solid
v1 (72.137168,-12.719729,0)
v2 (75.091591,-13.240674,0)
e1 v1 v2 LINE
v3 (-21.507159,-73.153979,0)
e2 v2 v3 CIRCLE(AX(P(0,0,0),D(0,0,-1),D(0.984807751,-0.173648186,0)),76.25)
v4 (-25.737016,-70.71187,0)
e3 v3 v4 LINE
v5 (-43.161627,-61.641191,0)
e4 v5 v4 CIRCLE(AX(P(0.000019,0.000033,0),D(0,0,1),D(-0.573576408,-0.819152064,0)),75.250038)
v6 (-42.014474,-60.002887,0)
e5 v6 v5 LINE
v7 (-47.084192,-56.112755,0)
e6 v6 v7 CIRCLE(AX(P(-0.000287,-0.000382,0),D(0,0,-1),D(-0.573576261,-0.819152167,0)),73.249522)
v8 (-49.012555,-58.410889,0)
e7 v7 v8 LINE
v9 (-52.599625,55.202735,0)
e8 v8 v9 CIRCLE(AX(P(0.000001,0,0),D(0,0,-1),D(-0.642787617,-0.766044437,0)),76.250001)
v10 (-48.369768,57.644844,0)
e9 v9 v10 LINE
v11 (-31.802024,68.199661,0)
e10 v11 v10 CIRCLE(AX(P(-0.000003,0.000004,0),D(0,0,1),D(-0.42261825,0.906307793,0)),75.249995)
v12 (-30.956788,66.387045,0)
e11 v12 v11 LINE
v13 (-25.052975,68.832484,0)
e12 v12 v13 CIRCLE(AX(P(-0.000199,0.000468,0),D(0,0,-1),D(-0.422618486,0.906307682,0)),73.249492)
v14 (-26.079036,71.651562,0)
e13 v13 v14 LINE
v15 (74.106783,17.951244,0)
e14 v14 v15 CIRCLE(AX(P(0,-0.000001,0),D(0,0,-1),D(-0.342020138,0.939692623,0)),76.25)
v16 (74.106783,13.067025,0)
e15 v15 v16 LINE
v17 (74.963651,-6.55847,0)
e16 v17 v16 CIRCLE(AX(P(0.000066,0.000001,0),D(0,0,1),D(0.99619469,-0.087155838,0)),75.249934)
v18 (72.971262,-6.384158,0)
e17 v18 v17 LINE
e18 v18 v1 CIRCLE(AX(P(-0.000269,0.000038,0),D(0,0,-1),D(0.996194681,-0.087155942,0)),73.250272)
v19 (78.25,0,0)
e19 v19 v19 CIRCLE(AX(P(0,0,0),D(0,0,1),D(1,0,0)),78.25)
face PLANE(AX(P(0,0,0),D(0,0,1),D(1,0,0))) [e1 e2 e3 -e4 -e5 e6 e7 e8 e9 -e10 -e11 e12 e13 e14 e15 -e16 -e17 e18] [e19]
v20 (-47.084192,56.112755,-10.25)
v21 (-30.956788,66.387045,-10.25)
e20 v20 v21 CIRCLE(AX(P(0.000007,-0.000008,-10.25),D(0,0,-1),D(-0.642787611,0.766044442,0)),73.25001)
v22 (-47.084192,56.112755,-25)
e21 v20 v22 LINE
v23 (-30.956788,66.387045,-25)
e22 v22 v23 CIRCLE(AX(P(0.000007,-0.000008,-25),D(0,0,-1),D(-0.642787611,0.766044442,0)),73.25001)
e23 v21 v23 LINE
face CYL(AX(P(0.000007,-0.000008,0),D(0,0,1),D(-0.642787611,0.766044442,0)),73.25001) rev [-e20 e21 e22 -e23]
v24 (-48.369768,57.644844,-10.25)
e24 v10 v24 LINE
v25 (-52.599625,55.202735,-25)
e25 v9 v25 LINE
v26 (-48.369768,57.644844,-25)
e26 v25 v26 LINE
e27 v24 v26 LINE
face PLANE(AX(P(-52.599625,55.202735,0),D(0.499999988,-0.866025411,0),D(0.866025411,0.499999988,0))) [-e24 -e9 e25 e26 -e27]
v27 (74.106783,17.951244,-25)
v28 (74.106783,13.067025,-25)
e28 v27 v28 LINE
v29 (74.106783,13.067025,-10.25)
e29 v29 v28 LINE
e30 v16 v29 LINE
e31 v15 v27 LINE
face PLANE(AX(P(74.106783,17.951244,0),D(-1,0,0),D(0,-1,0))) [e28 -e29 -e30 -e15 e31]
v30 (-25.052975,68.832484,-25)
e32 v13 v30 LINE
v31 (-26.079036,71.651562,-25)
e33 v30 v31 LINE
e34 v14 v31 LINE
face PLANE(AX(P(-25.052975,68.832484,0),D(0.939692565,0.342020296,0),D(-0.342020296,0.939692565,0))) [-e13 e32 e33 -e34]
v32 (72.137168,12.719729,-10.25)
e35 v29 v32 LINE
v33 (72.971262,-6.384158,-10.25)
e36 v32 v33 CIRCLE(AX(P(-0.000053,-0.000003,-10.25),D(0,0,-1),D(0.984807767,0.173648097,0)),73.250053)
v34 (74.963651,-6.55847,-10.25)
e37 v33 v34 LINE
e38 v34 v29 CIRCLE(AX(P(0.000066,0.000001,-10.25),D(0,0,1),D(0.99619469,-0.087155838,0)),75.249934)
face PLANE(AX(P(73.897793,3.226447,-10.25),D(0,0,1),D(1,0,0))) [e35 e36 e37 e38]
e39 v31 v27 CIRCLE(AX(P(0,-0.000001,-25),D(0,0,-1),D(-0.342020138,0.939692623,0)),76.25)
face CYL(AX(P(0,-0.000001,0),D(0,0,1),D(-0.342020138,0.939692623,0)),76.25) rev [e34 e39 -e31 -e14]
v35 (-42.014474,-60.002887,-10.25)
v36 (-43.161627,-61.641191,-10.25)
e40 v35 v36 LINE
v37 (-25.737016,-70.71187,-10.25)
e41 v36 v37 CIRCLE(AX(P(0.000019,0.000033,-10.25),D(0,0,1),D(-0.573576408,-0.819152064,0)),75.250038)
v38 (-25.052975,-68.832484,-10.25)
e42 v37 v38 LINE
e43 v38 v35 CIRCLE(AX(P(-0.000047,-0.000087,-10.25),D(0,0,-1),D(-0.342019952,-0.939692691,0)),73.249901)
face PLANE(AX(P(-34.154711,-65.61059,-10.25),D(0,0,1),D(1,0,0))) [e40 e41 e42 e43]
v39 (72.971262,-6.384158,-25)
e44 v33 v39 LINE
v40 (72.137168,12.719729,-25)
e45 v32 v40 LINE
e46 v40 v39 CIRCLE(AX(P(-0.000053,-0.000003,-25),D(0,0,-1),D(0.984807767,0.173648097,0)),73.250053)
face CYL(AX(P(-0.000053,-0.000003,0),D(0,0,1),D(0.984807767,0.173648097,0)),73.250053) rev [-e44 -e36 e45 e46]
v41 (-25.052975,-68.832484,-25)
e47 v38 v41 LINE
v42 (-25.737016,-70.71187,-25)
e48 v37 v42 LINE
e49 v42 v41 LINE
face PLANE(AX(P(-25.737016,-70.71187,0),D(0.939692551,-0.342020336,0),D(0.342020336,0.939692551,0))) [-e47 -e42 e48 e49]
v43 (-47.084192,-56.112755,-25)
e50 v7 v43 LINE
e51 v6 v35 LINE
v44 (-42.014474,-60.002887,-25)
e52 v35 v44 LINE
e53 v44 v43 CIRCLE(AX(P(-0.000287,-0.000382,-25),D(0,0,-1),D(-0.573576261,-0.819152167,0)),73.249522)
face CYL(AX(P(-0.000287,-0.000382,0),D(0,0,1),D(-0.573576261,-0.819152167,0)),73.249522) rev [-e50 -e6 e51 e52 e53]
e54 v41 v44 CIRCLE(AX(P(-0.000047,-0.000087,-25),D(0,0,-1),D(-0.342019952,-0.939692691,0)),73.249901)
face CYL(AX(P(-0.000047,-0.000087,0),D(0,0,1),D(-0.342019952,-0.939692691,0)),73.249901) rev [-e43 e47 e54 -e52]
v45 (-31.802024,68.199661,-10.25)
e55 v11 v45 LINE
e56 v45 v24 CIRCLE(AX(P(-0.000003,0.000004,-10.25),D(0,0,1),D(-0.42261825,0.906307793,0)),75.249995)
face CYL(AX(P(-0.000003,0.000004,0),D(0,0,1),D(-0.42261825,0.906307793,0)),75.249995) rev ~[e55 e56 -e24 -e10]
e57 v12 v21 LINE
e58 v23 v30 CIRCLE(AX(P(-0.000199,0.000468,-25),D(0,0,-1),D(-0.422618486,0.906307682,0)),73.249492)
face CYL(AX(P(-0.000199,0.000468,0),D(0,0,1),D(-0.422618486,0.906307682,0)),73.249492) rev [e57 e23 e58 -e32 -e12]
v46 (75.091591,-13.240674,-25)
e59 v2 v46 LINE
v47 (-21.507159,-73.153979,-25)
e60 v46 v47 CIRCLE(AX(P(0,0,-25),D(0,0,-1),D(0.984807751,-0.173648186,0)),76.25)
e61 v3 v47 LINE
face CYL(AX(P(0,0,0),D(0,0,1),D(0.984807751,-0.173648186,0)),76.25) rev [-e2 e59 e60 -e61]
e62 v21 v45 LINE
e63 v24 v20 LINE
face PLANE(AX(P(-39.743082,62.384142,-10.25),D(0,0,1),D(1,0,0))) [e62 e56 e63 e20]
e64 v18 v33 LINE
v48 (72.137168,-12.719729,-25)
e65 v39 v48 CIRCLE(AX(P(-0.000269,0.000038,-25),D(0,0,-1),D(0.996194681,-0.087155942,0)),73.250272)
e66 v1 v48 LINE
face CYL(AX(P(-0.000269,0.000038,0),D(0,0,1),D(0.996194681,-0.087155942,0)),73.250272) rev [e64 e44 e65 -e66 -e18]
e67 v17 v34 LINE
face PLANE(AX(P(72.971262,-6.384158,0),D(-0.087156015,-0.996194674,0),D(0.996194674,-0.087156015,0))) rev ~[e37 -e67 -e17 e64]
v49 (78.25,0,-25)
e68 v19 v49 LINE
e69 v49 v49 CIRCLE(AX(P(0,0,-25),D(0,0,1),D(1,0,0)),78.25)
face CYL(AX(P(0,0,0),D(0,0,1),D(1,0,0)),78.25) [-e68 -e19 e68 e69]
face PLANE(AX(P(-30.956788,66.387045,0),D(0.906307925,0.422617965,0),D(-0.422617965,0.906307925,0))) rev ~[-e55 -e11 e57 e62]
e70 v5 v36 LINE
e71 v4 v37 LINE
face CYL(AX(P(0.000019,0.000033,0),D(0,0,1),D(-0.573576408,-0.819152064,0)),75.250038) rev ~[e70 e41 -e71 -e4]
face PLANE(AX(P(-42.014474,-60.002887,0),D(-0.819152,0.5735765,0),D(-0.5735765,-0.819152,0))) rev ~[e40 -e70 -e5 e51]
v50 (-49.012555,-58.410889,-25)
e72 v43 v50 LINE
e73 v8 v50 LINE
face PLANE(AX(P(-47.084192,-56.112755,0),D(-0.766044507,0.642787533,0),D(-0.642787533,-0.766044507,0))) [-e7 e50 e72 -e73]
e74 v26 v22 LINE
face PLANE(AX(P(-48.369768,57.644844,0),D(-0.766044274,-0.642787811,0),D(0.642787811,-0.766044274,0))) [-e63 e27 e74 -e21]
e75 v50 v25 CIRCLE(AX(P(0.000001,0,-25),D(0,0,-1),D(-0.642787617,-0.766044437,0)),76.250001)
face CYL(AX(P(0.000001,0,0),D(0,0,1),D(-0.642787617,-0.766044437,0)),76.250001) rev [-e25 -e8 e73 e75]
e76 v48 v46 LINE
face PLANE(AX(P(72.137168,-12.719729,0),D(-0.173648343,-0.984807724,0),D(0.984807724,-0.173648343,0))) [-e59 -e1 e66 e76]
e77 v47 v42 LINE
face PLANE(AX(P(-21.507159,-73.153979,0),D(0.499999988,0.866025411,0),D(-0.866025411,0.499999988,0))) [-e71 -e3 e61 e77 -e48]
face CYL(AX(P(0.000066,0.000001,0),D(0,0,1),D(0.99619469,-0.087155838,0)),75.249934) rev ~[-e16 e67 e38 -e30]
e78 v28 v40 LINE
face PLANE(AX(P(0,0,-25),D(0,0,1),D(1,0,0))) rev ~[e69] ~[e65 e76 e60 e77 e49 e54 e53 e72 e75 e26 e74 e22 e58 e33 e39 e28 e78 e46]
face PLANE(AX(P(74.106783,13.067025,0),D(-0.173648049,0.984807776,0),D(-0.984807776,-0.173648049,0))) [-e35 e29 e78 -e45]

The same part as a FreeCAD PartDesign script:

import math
import FreeCAD as App
import Part
import Sketcher
from FreeCAD import Vector
Q = App.Units.Quantity

doc = App.newDocument("Part")
body = doc.addObject("PartDesign::Body", "Body")

sketch1 = doc.addObject("Sketcher::SketchObject", "Sketch")
body.addObject(sketch1)
sketch1.AttachmentSupport = (doc.XY_Plane, [""])
sketch1.MapMode = "FlatFace"
sketch1.addGeometry(Part.Circle(Vector(0, 0, 0), Vector(0, 0, 1), 78.25), False)
sketch1.addGeometry(Part.LineSegment(Vector(-52.599625, 55.202735, 0), Vector(-48.369768, 57.644844, 0)), False)
sketch1.addGeometry(Part.LineSegment(Vector(-48.369768, 57.644844, 0), Vector(-47.084192, 56.112755, 0)), False)
sketch1.addGeometry(Part.ArcOfCircle(Part.Circle(Vector(0.000007, -0.000008, 0), Vector(0, 0, 1), 73.25001), math.radians(115.000003), math.radians(130)), False)
sketch1.addGeometry(Part.ArcOfCircle(Part.Circle(Vector(-0.000199, 0.000468, 0), Vector(0, 0, 1), 73.249492), math.radians(109.999979), math.radians(115.000014)), False)
sketch1.addGeometry(Part.LineSegment(Vector(-25.052975, 68.832484, 0), Vector(-26.079036, 71.651562, 0)), False)
sketch1.addGeometry(Part.ArcOfCircle(Part.Circle(Vector(0, -0.000001, 0), Vector(0, 0, 1), 76.25), math.radians(13.616745), math.radians(110)), False)
sketch1.addGeometry(Part.LineSegment(Vector(74.106783, 17.951244, 0), Vector(74.106783, 13.067025, 0)), False)
sketch1.addGeometry(Part.LineSegment(Vector(74.106783, 13.067025, 0), Vector(72.137168, 12.719729, 0)), False)
sketch1.addGeometry(Part.ArcOfCircle(Part.Circle(Vector(-0.000053, -0.000003, 0), Vector(0, 0, 1), 73.250053), math.radians(-4.999994), math.radians(9.999995)), False)
sketch1.addGeometry(Part.ArcOfCircle(Part.Circle(Vector(-0.000269, 0.000038, 0), Vector(0, 0, 1), 73.250272), math.radians(-9.999993), math.radians(-5.000011)), False)
sketch1.addGeometry(Part.LineSegment(Vector(72.137168, -12.719729, 0), Vector(75.091591, -13.240674, 0)), False)
sketch1.addGeometry(Part.ArcOfCircle(Part.Circle(Vector(0, 0, 0), Vector(0, 0, 1), 76.25), math.radians(-106.383256), math.radians(-10.000001)), False)
sketch1.addGeometry(Part.LineSegment(Vector(-21.507159, -73.153979, 0), Vector(-25.737016, -70.71187, 0)), False)
sketch1.addGeometry(Part.LineSegment(Vector(-25.737016, -70.71187, 0), Vector(-25.052975, -68.832484, 0)), False)
sketch1.addGeometry(Part.ArcOfCircle(Part.Circle(Vector(-0.000047, -0.000087, 0), Vector(0, 0, 1), 73.249901), math.radians(-125.000009), math.radians(-109.999988)), False)
sketch1.addGeometry(Part.ArcOfCircle(Part.Circle(Vector(-0.000287, -0.000382, 0), Vector(0, 0, 1), 73.249522), math.radians(-130.00002), math.radians(-124.999988)), False)
sketch1.addGeometry(Part.LineSegment(Vector(-47.084192, -56.112755, 0), Vector(-49.012555, -58.410889, 0)), False)
sketch1.addGeometry(Part.ArcOfCircle(Part.Circle(Vector(0.000001, 0, 0), Vector(0, 0, 1), 76.250001), math.radians(133.616745), math.radians(229.999999)), False)
sketch1.addConstraint(Sketcher.Constraint("Coincident", 1, 2, 2, 1))
sketch1.addConstraint(Sketcher.Constraint("Coincident", 2, 2, 3, 2))
sketch1.addConstraint(Sketcher.Constraint("Coincident", 3, 1, 4, 2))
sketch1.addConstraint(Sketcher.Constraint("Coincident", 4, 1, 5, 1))
sketch1.addConstraint(Sketcher.Constraint("Coincident", 5, 2, 6, 2))
sketch1.addConstraint(Sketcher.Constraint("Coincident", 6, 1, 7, 1))
sketch1.addConstraint(Sketcher.Constraint("Coincident", 7, 2, 8, 1))
sketch1.addConstraint(Sketcher.Constraint("Coincident", 8, 2, 9, 2))
sketch1.addConstraint(Sketcher.Constraint("Coincident", 9, 1, 10, 2))
sketch1.addConstraint(Sketcher.Constraint("Coincident", 10, 1, 11, 1))
sketch1.addConstraint(Sketcher.Constraint("Coincident", 11, 2, 12, 2))
sketch1.addConstraint(Sketcher.Constraint("Coincident", 12, 1, 13, 1))
sketch1.addConstraint(Sketcher.Constraint("Coincident", 13, 2, 14, 1))
sketch1.addConstraint(Sketcher.Constraint("Coincident", 14, 2, 15, 2))
sketch1.addConstraint(Sketcher.Constraint("Coincident", 15, 1, 16, 2))
sketch1.addConstraint(Sketcher.Constraint("Coincident", 16, 1, 17, 1))
sketch1.addConstraint(Sketcher.Constraint("Coincident", 17, 2, 18, 2))
sketch1.addConstraint(Sketcher.Constraint("Coincident", 18, 1, 1, 1))
sketch1.addConstraint(Sketcher.Constraint("Vertical", 7))
sketch1.addConstraint(Sketcher.Constraint("Coincident", 0, 3, -1, 1))
sketch1.addConstraint(Sketcher.Constraint("Coincident", 6, 3, -1, 1))
sketch1.addConstraint(Sketcher.Constraint("Coincident", 12, 3, -1, 1))
sketch1.addConstraint(Sketcher.Constraint("Coincident", 18, 3, -1, 1))
sketch1.addConstraint(Sketcher.Constraint("Diameter", 0, Q("156.5 mm")))
sketch1.addConstraint(Sketcher.Constraint("Radius", 6, Q("76.25 mm")))
sketch1.addConstraint(Sketcher.Constraint("Radius", 12, Q("76.25 mm")))
sketch1.addConstraint(Sketcher.Constraint("Radius", 18, Q("76.250001 mm")))
sketch1.addConstraint(Sketcher.Constraint("Distance", 2, Q("2.000001 mm")))
sketch1.addConstraint(Sketcher.Constraint("Distance", 5, Q("3 mm")))
sketch1.addConstraint(Sketcher.Constraint("Distance", 8, Q("1.999999 mm")))
sketch1.addConstraint(Sketcher.Constraint("Distance", 11, Q("3 mm")))
sketch1.addConstraint(Sketcher.Constraint("Distance", 14, Q("2.000001 mm")))
sketch1.addConstraint(Sketcher.Constraint("Distance", 17, Q("3.000001 mm")))
sketch1.addConstraint(Sketcher.Constraint("Radius", 15, Q("73.249901 mm")))
sketch1.addConstraint(Sketcher.Constraint("Radius", 3, Q("73.25001 mm")))
sketch1.addConstraint(Sketcher.Constraint("Radius", 10, Q("73.250272 mm")))
sketch1.addConstraint(Sketcher.Constraint("Radius", 4, Q("73.249492 mm")))
sketch1.addConstraint(Sketcher.Constraint("Radius", 9, Q("73.250053 mm")))
sketch1.addConstraint(Sketcher.Constraint("Radius", 16, Q("73.249522 mm")))
sketch1.addConstraint(Sketcher.Constraint("DistanceY", 7, 2, 7, 1, Q("4.884219 mm")))
sketch1.addConstraint(Sketcher.Constraint("DistanceX", 4, 3, -1, 1, Q("0.000199 mm")))
sketch1.addConstraint(Sketcher.Constraint("DistanceX", 1, 2, 10, 3, Q("48.369499 mm")))
sketch1.addConstraint(Sketcher.Constraint("DistanceY", 1, 2, 3, 1, Q("8.742201 mm")))
sketch1.addConstraint(Sketcher.Constraint("DistanceY", 9, 1, 6, 1, Q("24.335402 mm")))
sketch1.addConstraint(Sketcher.Constraint("DistanceY", 11, 2, 7, 2, Q("26.307699 mm")))
sketch1.addConstraint(Sketcher.Constraint("DistanceX", 15, 1, 14, 2, Q("16.961499 mm")))
sketch1.addConstraint(Sketcher.Constraint("Distance", 1, Q("4.884218 mm")))
sketch1.addConstraint(Sketcher.Constraint("Distance", 13, Q("4.884218 mm")))
sketch1.addConstraint(Sketcher.Constraint("DistanceX", 10, 3, -1, 1, Q("0.000269 mm")))
sketch1.addConstraint(Sketcher.Constraint("DistanceY", 16, 3, -1, 1, Q("0.000382 mm")))
sketch1.addConstraint(Sketcher.Constraint("DistanceX", 3, 1, -1, 1, Q("30.956788 mm")))
sketch1.addConstraint(Sketcher.Constraint("DistanceY", -1, 1, 5, 2, Q("71.651562 mm")))
sketch1.addConstraint(Sketcher.Constraint("DistanceX", -1, 1, 8, 2, Q("72.137168 mm")))
sketch1.addConstraint(Sketcher.Constraint("DistanceY", -1, 1, 8, 2, Q("12.719729 mm")))
sketch1.addConstraint(Sketcher.Constraint("DistanceX", -1, 1, 10, 1, Q("72.137168 mm")))
sketch1.addConstraint(Sketcher.Constraint("DistanceX", 12, 1, -1, 1, Q("21.507159 mm")))
sketch1.addConstraint(Sketcher.Constraint("DistanceY", 13, 2, -1, 1, Q("70.71187 mm")))
sketch1.addConstraint(Sketcher.Constraint("DistanceY", 17, 2, -1, 1, Q("58.410889 mm")))
sketch1.addConstraint(Sketcher.Constraint("DistanceY", 2, 2, 1, 2, Q("1.532089 mm")))
sketch1.addConstraint(Sketcher.Constraint("DistanceY", 3, 1, 4, 1, Q("2.445439 mm")))
sketch1.addConstraint(Sketcher.Constraint("DistanceX", 13, 2, 14, 2, Q("0.684041 mm")))
sketch1.addConstraint(Sketcher.Constraint("DistanceX", 16, 1, 15, 1, Q("5.069718 mm")))
pad1 = doc.addObject("PartDesign::Pad", "Pad")
body.addObject(pad1)
pad1.Profile = sketch1
pad1.Length = 25
pad1.Reversed = True

sketch2 = doc.addObject("Sketcher::SketchObject", "Sketch001")
body.addObject(sketch2)
sketch2.AttachmentSupport = (doc.XY_Plane, [""])
sketch2.MapMode = "FlatFace"
sketch2.addGeometry(Part.ArcOfCircle(Part.Circle(Vector(0.000066, 0.000001, 0), Vector(0, 0, 1), 75.249934), math.radians(-5.000005), math.radians(10.000008)), False)
sketch2.addGeometry(Part.LineSegment(Vector(74.106783, 13.067025, 0), Vector(72.137168, 12.719729, 0)), False)
sketch2.addGeometry(Part.ArcOfCircle(Part.Circle(Vector(-0.000053, -0.000003, 0), Vector(0, 0, 1), 73.250053), math.radians(-4.999994), math.radians(9.999995)), False)
sketch2.addGeometry(Part.LineSegment(Vector(72.971262, -6.384158, 0), Vector(74.963651, -6.55847, 0)), False)
sketch2.addGeometry(Part.LineSegment(Vector(-30.956788, 66.387045, 0), Vector(-31.802024, 68.199661, 0)), False)
sketch2.addGeometry(Part.ArcOfCircle(Part.Circle(Vector(-0.000003, 0.000004, 0), Vector(0, 0, 1), 75.249995), math.radians(114.999999), math.radians(130.000001)), False)
sketch2.addGeometry(Part.LineSegment(Vector(-48.369768, 57.644844, 0), Vector(-47.084192, 56.112755, 0)), False)
sketch2.addGeometry(Part.ArcOfCircle(Part.Circle(Vector(0.000007, -0.000008, 0), Vector(0, 0, 1), 73.25001), math.radians(115.000003), math.radians(130)), False)
sketch2.addGeometry(Part.ArcOfCircle(Part.Circle(Vector(-0.000047, -0.000087, 0), Vector(0, 0, 1), 73.249901), math.radians(-125.000009), math.radians(-109.999988)), False)
sketch2.addGeometry(Part.LineSegment(Vector(-42.014474, -60.002887, 0), Vector(-43.161627, -61.641191, 0)), False)
sketch2.addGeometry(Part.ArcOfCircle(Part.Circle(Vector(0.000019, 0.000033, 0), Vector(0, 0, 1), 75.250038), math.radians(-124.999998), math.radians(-110.000005)), False)
sketch2.addGeometry(Part.LineSegment(Vector(-25.737016, -70.71187, 0), Vector(-25.052975, -68.832484, 0)), False)
sketch2.addConstraint(Sketcher.Constraint("Coincident", 0, 2, 1, 1))
sketch2.addConstraint(Sketcher.Constraint("Coincident", 1, 2, 2, 2))
sketch2.addConstraint(Sketcher.Constraint("Coincident", 2, 1, 3, 1))
sketch2.addConstraint(Sketcher.Constraint("Coincident", 3, 2, 0, 1))
sketch2.addConstraint(Sketcher.Constraint("Coincident", 4, 2, 5, 1))
sketch2.addConstraint(Sketcher.Constraint("Coincident", 5, 2, 6, 1))
sketch2.addConstraint(Sketcher.Constraint("Coincident", 6, 2, 7, 2))
sketch2.addConstraint(Sketcher.Constraint("Coincident", 7, 1, 4, 1))
sketch2.addConstraint(Sketcher.Constraint("Coincident", 8, 1, 9, 1))
sketch2.addConstraint(Sketcher.Constraint("Coincident", 9, 2, 10, 1))
sketch2.addConstraint(Sketcher.Constraint("Coincident", 10, 2, 11, 1))
sketch2.addConstraint(Sketcher.Constraint("Coincident", 11, 2, 8, 2))
sketch2.addConstraint(Sketcher.Constraint("Coincident", 5, 3, -1, 1))
sketch2.addConstraint(Sketcher.Constraint("PointOnObject", 0, 3, -1))
sketch2.addConstraint(Sketcher.Constraint("Distance", 1, Q("1.999999 mm")))
sketch2.addConstraint(Sketcher.Constraint("Distance", 3, Q("2 mm")))
sketch2.addConstraint(Sketcher.Constraint("Distance", 4, Q("2 mm")))
sketch2.addConstraint(Sketcher.Constraint("Distance", 6, Q("2.000001 mm")))
sketch2.addConstraint(Sketcher.Constraint("Distance", 9, Q("2 mm")))
sketch2.addConstraint(Sketcher.Constraint("Distance", 11, Q("2.000001 mm")))
sketch2.addConstraint(Sketcher.Constraint("Radius", 8, Q("73.249901 mm")))
sketch2.addConstraint(Sketcher.Constraint("Radius", 7, Q("73.25001 mm")))
sketch2.addConstraint(Sketcher.Constraint("Radius", 0, Q("75.249934 mm")))
sketch2.addConstraint(Sketcher.Constraint("Radius", 2, Q("73.250053 mm")))
sketch2.addConstraint(Sketcher.Constraint("Radius", 5, Q("75.249995 mm")))
sketch2.addConstraint(Sketcher.Constraint("Radius", 10, Q("75.250038 mm")))
sketch2.addConstraint(Sketcher.Constraint("DistanceX", 0, 3, 1, 2, Q("72.137102 mm")))
sketch2.addConstraint(Sketcher.Constraint("DistanceY", 3, 2, 1, 2, Q("19.278199 mm")))
sketch2.addConstraint(Sketcher.Constraint("DistanceY", 5, 2, 7, 1, Q("8.742201 mm")))
sketch2.addConstraint(Sketcher.Constraint("DistanceY", 8, 1, 8, 3, Q("60.0028 mm")))
sketch2.addConstraint(Sketcher.Constraint("DistanceX", 8, 1, 11, 2, Q("16.961499 mm")))
sketch2.addConstraint(Sketcher.Constraint("DistanceX", -1, 1, 1, 2, Q("72.137168 mm")))
sketch2.addConstraint(Sketcher.Constraint("DistanceX", -1, 1, 2, 1, Q("72.971262 mm")))
sketch2.addConstraint(Sketcher.Constraint("DistanceY", -1, 1, 4, 2, Q("68.199661 mm")))
sketch2.addConstraint(Sketcher.Constraint("DistanceX", 7, 1, -1, 1, Q("30.956788 mm")))
sketch2.addConstraint(Sketcher.Constraint("DistanceY", 9, 2, -1, 1, Q("61.641191 mm")))
sketch2.addConstraint(Sketcher.Constraint("DistanceY", 10, 2, -1, 1, Q("70.71187 mm")))
sketch2.addConstraint(Sketcher.Constraint("DistanceY", 5, 3, 0, 2, Q("13.067021 mm")))
sketch2.addConstraint(Sketcher.Constraint("DistanceX", 10, 3, 1, 2, Q("72.137149 mm")))
sketch2.addConstraint(Sketcher.Constraint("DistanceY", 2, 1, 10, 3, Q("6.384191 mm")))
sketch2.addConstraint(Sketcher.Constraint("DistanceY", 6, 2, 5, 2, Q("1.532089 mm")))
pocket1 = doc.addObject("PartDesign::Pocket", "Pocket")
body.addObject(pocket1)
pocket1.Profile = sketch2
pocket1.Length = 10.25

doc.recompute()
